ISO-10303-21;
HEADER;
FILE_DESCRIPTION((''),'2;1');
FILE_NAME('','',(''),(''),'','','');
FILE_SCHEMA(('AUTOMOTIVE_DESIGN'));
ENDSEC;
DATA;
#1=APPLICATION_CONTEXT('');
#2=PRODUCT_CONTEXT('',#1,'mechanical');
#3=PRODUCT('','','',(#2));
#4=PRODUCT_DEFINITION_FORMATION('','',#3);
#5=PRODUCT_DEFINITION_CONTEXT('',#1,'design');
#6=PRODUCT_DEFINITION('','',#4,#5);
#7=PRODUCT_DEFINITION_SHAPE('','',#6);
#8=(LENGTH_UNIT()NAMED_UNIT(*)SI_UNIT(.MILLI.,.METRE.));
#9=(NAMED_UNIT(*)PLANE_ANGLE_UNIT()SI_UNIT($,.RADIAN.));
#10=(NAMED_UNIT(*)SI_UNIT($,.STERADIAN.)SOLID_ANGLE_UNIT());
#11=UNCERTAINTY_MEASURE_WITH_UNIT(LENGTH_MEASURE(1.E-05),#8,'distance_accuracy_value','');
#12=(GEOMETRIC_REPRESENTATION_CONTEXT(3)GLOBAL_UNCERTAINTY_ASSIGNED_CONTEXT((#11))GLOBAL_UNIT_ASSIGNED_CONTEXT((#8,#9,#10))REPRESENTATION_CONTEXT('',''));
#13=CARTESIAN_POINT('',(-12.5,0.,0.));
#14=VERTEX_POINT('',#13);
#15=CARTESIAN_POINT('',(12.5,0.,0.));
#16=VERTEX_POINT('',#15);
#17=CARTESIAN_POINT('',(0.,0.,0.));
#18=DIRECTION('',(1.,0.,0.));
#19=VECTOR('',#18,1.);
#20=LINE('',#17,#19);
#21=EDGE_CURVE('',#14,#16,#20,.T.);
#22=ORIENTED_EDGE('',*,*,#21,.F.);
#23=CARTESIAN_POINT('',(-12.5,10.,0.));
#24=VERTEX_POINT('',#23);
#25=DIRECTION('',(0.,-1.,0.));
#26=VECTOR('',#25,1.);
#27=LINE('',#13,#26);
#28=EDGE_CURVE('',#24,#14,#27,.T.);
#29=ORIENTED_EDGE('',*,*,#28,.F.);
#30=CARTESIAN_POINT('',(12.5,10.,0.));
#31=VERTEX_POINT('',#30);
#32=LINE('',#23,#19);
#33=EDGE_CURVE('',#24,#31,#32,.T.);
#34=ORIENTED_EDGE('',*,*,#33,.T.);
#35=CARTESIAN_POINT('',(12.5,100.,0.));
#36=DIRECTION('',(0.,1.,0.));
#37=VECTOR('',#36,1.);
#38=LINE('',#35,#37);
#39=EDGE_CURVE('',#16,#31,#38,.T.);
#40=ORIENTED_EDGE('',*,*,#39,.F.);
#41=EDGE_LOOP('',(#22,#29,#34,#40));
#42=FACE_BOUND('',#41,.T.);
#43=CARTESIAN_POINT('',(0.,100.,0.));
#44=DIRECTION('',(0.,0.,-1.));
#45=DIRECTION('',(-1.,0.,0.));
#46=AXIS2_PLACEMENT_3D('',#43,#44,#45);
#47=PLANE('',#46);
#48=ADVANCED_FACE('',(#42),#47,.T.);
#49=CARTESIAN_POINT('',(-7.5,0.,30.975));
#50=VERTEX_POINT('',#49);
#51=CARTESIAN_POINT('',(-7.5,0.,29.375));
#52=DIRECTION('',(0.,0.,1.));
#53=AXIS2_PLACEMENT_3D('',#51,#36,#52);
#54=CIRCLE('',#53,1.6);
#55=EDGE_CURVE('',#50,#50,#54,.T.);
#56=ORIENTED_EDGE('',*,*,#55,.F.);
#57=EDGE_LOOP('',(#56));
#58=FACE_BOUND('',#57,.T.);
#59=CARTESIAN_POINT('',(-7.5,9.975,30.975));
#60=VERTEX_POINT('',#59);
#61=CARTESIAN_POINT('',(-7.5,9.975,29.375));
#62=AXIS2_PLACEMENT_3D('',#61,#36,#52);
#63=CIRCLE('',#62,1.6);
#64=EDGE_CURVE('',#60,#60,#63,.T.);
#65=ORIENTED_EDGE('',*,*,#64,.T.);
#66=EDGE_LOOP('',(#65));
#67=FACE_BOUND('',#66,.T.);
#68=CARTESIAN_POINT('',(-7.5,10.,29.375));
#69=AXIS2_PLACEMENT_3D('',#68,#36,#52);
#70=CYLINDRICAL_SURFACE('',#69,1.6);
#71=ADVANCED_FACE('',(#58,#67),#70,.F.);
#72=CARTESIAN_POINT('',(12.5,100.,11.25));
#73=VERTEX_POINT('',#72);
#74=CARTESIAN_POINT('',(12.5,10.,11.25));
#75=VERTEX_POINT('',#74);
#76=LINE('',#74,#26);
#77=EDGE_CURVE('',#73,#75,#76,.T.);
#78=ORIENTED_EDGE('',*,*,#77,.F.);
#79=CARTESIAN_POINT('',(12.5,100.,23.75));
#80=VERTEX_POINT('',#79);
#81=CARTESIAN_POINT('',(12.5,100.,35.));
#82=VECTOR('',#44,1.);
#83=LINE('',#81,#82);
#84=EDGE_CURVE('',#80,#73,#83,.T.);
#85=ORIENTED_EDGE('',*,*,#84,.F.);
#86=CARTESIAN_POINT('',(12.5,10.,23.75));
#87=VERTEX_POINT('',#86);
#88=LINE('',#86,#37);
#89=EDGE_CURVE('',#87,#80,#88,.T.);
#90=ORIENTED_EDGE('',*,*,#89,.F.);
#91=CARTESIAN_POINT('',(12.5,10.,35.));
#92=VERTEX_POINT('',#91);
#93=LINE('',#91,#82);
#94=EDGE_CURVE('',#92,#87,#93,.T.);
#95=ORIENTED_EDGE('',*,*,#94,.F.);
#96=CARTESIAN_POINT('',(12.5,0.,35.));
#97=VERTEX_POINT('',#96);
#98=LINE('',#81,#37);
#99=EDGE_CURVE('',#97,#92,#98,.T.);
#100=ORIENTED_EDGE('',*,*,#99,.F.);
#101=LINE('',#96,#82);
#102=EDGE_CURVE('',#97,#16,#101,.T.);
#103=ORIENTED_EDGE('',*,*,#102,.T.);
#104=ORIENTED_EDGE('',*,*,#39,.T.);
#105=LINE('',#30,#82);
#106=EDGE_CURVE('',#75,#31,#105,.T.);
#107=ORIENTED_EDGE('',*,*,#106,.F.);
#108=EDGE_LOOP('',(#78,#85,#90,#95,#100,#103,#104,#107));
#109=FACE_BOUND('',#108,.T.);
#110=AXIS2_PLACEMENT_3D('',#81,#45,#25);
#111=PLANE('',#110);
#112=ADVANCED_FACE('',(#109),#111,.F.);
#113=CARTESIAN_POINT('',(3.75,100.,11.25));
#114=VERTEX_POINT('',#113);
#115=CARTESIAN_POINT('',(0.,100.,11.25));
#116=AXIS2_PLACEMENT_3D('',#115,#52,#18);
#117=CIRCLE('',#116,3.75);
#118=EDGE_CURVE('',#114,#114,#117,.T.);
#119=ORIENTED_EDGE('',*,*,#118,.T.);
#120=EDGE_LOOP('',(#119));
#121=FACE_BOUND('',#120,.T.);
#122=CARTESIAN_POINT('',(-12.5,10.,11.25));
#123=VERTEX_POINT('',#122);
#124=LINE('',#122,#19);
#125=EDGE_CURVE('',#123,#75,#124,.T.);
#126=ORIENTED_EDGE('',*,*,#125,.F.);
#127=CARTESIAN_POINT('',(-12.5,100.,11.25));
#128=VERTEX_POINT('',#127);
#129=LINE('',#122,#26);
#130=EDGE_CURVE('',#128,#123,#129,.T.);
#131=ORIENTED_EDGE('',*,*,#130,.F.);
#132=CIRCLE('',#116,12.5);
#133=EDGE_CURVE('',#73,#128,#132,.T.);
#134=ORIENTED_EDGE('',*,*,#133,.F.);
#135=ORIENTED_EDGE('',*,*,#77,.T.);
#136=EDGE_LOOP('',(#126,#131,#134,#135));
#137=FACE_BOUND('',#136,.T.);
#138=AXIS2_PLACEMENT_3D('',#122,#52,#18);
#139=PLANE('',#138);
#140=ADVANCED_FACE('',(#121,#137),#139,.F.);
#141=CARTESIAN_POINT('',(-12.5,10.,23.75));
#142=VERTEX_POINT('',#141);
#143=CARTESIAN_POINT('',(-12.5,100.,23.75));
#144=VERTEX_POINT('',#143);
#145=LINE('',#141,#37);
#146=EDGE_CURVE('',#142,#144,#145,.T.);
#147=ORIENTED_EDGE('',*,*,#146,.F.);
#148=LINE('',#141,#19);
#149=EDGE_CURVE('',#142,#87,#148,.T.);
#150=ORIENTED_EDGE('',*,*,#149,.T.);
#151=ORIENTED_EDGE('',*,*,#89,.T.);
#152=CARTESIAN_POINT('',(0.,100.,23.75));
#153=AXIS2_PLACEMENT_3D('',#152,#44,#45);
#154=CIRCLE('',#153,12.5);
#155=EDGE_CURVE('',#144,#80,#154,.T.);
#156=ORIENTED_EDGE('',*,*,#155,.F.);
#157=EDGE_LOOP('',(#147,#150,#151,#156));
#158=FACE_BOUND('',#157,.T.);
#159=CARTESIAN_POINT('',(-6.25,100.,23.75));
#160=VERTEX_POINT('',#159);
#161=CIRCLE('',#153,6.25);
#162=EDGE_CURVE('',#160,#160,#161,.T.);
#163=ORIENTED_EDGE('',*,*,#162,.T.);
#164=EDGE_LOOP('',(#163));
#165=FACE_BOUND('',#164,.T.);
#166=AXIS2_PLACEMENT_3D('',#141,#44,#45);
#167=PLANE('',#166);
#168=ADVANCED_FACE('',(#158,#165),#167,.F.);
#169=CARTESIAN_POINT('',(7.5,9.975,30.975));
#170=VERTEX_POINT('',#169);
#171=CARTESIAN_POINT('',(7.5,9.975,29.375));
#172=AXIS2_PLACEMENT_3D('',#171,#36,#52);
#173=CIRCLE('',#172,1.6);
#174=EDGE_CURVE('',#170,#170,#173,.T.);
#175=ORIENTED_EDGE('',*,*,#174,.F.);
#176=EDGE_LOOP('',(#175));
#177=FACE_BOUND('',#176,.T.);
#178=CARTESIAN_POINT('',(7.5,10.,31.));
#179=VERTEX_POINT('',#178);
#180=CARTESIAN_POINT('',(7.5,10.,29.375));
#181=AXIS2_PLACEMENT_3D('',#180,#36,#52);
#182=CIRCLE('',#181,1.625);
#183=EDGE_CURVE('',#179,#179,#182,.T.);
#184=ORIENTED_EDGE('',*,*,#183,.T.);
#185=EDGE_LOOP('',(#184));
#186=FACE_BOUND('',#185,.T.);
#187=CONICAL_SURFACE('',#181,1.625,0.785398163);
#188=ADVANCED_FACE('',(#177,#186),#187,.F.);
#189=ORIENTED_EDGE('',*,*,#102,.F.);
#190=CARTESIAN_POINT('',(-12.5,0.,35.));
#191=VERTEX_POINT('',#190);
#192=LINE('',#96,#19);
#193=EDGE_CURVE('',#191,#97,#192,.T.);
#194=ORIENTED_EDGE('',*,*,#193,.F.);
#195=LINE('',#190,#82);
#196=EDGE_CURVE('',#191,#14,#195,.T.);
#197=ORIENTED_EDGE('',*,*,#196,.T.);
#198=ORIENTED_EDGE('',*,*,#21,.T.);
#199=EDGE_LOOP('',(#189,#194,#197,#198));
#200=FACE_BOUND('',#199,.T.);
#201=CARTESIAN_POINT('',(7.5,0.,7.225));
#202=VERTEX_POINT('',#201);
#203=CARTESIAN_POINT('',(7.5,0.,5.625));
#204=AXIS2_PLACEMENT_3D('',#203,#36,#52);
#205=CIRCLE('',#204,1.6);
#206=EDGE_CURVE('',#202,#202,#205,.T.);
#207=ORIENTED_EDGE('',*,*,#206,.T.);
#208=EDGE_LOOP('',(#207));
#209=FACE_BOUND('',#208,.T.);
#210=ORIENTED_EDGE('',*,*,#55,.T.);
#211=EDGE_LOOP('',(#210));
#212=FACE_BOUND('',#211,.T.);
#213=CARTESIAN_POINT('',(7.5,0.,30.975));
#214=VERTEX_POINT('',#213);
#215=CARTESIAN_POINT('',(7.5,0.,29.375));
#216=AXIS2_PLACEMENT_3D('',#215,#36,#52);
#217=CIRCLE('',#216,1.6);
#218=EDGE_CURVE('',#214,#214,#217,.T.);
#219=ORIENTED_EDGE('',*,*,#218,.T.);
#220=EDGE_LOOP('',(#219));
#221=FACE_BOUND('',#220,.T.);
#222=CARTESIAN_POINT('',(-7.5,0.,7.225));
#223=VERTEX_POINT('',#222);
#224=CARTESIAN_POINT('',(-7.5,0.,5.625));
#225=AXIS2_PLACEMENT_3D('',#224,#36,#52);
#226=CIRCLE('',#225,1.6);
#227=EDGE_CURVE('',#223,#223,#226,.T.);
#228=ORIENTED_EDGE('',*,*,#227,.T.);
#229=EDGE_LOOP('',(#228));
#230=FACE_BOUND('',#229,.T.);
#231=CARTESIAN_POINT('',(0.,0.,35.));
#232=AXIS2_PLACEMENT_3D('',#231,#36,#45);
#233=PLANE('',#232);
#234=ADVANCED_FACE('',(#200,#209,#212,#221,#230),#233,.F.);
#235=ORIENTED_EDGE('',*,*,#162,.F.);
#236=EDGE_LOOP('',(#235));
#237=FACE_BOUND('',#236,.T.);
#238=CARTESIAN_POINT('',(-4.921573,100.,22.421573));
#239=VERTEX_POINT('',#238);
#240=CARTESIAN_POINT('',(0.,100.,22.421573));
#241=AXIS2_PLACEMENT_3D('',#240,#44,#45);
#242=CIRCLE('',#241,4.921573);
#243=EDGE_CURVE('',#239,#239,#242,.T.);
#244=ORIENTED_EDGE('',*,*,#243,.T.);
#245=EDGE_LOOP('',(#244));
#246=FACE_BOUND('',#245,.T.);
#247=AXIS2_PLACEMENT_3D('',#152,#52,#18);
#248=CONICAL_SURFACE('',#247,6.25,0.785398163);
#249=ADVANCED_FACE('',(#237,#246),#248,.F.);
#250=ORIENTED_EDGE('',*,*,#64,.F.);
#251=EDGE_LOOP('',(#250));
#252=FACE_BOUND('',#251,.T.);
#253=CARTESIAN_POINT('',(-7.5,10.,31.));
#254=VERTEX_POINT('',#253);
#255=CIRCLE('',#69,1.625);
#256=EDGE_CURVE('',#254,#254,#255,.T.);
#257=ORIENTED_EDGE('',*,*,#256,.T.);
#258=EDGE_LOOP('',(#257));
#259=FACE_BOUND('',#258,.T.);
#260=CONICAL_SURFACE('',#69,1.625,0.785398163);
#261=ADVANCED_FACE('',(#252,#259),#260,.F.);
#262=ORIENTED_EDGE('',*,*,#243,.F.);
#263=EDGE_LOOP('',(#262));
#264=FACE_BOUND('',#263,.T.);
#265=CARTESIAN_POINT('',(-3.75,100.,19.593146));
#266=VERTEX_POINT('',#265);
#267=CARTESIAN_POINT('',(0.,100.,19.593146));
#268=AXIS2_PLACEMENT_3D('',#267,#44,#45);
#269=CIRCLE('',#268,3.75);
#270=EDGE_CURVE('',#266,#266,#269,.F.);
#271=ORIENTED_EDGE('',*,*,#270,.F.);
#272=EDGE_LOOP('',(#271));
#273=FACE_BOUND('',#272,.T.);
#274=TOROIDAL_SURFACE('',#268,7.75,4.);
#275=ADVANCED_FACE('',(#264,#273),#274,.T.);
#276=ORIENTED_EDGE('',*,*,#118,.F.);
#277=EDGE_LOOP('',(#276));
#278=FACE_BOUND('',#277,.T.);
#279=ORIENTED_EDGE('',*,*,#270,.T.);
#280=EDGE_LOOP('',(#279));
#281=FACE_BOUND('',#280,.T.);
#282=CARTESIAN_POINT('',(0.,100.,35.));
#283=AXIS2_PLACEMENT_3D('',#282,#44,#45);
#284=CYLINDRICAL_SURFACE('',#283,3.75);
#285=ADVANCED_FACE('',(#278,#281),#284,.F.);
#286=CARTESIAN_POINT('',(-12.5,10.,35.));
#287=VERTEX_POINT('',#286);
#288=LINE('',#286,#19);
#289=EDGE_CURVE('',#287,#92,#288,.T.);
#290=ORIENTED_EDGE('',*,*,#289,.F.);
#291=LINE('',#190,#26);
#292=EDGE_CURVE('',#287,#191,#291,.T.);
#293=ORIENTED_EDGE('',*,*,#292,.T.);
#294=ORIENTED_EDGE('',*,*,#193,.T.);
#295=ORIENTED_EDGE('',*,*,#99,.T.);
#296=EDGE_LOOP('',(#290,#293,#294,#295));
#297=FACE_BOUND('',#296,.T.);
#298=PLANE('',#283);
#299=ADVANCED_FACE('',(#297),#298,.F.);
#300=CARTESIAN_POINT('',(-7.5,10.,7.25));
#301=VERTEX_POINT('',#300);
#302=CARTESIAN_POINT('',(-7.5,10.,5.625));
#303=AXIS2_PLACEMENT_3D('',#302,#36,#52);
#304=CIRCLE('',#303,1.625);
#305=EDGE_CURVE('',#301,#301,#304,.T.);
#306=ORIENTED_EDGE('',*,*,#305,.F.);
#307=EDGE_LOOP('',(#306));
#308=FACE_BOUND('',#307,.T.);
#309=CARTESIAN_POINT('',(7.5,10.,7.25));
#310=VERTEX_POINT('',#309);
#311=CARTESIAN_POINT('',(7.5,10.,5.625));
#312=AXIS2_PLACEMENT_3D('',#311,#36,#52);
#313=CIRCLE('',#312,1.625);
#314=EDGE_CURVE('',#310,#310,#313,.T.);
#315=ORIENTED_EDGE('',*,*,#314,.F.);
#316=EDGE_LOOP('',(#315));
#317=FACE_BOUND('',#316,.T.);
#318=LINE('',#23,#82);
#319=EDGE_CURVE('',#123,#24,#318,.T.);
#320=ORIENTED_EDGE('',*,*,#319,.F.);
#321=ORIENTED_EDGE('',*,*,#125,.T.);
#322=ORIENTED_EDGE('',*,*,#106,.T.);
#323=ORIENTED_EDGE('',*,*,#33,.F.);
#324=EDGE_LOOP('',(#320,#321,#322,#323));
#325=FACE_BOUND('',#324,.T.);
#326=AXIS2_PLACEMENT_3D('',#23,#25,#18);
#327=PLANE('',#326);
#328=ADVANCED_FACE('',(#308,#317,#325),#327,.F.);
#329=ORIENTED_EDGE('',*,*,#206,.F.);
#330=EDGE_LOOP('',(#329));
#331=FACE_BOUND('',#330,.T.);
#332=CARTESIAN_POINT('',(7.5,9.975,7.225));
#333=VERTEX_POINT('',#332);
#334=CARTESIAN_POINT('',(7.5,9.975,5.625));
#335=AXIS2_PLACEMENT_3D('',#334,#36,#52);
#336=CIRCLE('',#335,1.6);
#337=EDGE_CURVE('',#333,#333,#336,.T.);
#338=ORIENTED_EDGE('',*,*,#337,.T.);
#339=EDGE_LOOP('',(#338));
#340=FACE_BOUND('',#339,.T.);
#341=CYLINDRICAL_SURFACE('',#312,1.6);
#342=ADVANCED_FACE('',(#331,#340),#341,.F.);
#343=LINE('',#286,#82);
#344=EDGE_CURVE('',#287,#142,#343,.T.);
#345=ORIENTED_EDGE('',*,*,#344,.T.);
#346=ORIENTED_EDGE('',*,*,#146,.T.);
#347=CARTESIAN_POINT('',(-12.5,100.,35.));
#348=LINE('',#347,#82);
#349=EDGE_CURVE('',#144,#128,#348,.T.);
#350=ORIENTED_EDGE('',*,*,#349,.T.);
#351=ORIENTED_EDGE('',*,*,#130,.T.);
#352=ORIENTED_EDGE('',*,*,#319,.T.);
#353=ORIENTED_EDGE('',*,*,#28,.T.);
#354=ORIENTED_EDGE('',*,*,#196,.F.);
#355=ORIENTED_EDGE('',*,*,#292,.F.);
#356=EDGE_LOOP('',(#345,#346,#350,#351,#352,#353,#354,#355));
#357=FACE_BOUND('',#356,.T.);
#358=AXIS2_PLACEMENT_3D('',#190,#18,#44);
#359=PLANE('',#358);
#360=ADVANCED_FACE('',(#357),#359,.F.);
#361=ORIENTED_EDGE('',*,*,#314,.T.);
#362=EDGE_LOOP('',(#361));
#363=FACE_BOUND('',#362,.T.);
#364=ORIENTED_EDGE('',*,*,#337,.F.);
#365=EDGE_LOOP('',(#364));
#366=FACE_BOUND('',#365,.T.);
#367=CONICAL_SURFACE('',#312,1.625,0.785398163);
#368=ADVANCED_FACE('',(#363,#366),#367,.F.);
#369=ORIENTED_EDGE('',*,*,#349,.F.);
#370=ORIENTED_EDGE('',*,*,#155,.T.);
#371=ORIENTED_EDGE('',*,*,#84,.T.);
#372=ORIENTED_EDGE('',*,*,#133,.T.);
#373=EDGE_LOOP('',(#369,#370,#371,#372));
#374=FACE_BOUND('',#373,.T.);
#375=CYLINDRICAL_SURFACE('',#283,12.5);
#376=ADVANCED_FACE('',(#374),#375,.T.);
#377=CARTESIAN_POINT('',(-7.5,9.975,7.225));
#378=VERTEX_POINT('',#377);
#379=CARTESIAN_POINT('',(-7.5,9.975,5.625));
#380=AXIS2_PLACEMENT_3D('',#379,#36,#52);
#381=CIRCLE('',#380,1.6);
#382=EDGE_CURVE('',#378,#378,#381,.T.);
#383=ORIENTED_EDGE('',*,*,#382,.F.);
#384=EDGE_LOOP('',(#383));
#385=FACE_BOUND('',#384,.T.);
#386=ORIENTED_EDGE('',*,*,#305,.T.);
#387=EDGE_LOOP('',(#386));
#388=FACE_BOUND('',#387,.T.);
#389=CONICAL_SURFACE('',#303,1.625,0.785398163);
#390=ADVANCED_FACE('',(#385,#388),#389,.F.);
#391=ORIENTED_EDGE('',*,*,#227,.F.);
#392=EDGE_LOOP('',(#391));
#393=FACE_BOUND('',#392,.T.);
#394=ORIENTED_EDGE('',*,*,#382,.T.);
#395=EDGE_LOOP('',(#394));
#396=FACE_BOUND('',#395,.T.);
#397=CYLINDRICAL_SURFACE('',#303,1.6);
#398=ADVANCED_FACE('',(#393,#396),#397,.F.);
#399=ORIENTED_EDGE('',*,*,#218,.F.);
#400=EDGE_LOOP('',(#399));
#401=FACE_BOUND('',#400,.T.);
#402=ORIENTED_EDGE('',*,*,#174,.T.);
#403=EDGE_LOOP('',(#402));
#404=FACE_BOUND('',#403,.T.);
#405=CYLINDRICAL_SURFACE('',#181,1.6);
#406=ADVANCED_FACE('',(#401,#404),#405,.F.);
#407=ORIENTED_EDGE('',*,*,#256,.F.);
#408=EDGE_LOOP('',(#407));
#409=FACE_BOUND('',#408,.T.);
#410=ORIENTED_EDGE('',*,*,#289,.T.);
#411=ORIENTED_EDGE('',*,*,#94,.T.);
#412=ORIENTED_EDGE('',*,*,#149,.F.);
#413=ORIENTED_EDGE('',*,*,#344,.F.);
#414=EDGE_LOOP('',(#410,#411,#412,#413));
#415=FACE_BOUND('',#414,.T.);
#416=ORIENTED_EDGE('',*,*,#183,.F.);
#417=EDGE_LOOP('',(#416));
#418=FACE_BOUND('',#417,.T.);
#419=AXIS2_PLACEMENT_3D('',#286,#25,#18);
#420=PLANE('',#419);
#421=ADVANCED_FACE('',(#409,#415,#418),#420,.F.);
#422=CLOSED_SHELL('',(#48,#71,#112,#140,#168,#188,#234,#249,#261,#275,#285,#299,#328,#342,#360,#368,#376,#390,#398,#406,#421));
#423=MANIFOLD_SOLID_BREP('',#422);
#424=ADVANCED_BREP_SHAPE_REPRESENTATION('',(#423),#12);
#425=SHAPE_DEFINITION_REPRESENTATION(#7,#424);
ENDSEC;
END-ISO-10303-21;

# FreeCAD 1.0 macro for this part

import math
import FreeCAD as App
import Part
import Sketcher


def edges_at(feature, points):
    """Names of the edges that pass closest to the given points."""
    edges = feature.Shape.Edges
    near = lambda p: min(range(len(edges)), key=lambda i: edges[i].distToShape(Part.Vertex(*p))[0])
    return sorted({f"Edge{near(p) + 1}" for p in points})


def add_polygon(sketch, points):
    """Adds a closed chain of lines whose ends are joined by coincident constraints."""
    first, n = sketch.GeometryCount, len(points)
    for a, b in zip(points, points[1:] + points[:1]):
        sketch.addGeometry(Part.LineSegment(App.Vector(*a, 0), App.Vector(*b, 0)), False)
    for i in range(n):
        sketch.addConstraint(Sketcher.Constraint("Coincident", first + i, 2, first + (i + 1) % n, 1))

doc = App.newDocument("Part")
params = doc.addObject("Spreadsheet::Sheet", "Params")
for row, (alias, value) in enumerate([
    ("sketch1_diameter", "7.5 mm"),
    ("sketch1_radius", "12.5 mm"),
    ("sketch1_height", "100 mm"),
    ("pad1_length", "35 mm"),
    ("sketch2_width", "102.5 mm"),
    ("sketch2_height", "11.25 mm"),
    ("sketch3_diameter", "3.2 mm"),
    ("hole_diameter", "3.2 mm"),
    ("hole_csink_diameter", "3.25 mm"),
    ("chamfer_size", "2.5 mm"),
    ("fillet_radius", "4 mm"),
], start=1):
    params.set(f"A{row}", alias)
    params.set(f"B{row}", "=" + value)
    params.setAlias(f"B{row}", alias)

body = doc.addObject("PartDesign::Body", "Body")

# Sketch on XY plane
sketch1 = body.newObject("Sketcher::SketchObject", "Sketch")
sketch1.AttachmentSupport = (doc.getObject("XY_Plane"), [""])
sketch1.MapMode = "FlatFace"
sketch1.addGeometry([
    Part.LineSegment(App.Vector(-12.5, 100, 0), App.Vector(-12.5, 0, 0)),  # 0
    Part.LineSegment(App.Vector(-12.5, 0, 0), App.Vector(12.5, 0, 0)),  # 1
    Part.LineSegment(App.Vector(12.5, 0, 0), App.Vector(12.5, 100, 0)),  # 2
    Part.ArcOfCircle(Part.Circle(App.Vector(0, 100, 0), App.Vector(0, 0, 1), 12.5), math.radians(0), math.radians(180)),  # 3
    Part.Circle(App.Vector(0, 100, 0), App.Vector(0, 0, 1), 3.8),  # 4
], False)
sketch1.addConstraint([
    Sketcher.Constraint("Coincident", 0, 2, 1, 1),
    Sketcher.Constraint("Coincident", 1, 2, 2, 1),
    Sketcher.Constraint("Tangent", 2, 2, 3, 1),
    Sketcher.Constraint("Tangent", 3, 2, 0, 1),
    Sketcher.Constraint("Vertical", 0),
    Sketcher.Constraint("Horizontal", 1),
    Sketcher.Constraint("Vertical", 2),
    Sketcher.Constraint("Coincident", 4, 3, 3, 3),
    Sketcher.Constraint("Symmetric", 0, 2, 1, 2, -1, 1),
    Sketcher.Constraint("Diameter", 4, 7.5),
    Sketcher.Constraint("Radius", 3, 12.5),
    Sketcher.Constraint("DistanceY", 0, 2, 0, 1, 100.0),
])
sketch1.setExpression("Constraints[9]", "Params.sketch1_diameter")
sketch1.setExpression("Constraints[10]", "Params.sketch1_radius")
sketch1.setExpression("Constraints[11]", "Params.sketch1_height")
pad1 = body.newObject("PartDesign::Pad", "Pad")
pad1.Profile = sketch1
pad1.setExpression("Length", "Params.pad1_length")

# Sketch on YZ plane
sketch2 = body.newObject("Sketcher::SketchObject", "Sketch001")
sketch2.AttachmentSupport = (doc.getObject("YZ_Plane"), [""])
sketch2.MapMode = "FlatFace"
sketch2.AttachmentOffset = App.Placement(App.Vector(0, 0, 12.5), App.Rotation())
add_polygon(sketch2, [(112, 35), (10, 35), (10, 24), (112, 24)])  # lines 0-3
add_polygon(sketch2, [(112, 11), (10, 11), (10, 0), (112, 0)])  # lines 4-7
sketch2.addConstraint([
    Sketcher.Constraint("Horizontal", 0),
    Sketcher.Constraint("Vertical", 1),
    Sketcher.Constraint("Horizontal", 2),
    Sketcher.Constraint("Vertical", 3),
    Sketcher.Constraint("Horizontal", 4),
    Sketcher.Constraint("Vertical", 5),
    Sketcher.Constraint("Horizontal", 6),
    Sketcher.Constraint("Vertical", 7),
    Sketcher.Constraint("PointOnObject", 5, 2, -1),
    Sketcher.Constraint("Vertical", 1, 2, 4, 2),
    Sketcher.Constraint("Vertical", 3, 2, 6, 2),
    Sketcher.Constraint("Equal", 3, 5),
    Sketcher.Constraint("DistanceX", 0, 2, 0, 1, 102.5),
    Sketcher.Constraint("DistanceX", -1, 1, 0, 2, 10.0),
    Sketcher.Constraint("DistanceY", -1, 1, 0, 2, 35.0),
    Sketcher.Constraint("DistanceY", 1, 2, 1, 1, 11.25),
])
sketch2.setExpression("Constraints[20]", "Params.sketch2_width")
sketch2.setExpression("Constraints[23]", "Params.sketch2_height")
pocket1 = body.newObject("PartDesign::Pocket", "Pocket")
pocket1.Profile = sketch2
pocket1.Type = "ThroughAll"

# Sketch on XZ plane
sketch3 = body.newObject("Sketcher::SketchObject", "Sketch002")
sketch3.AttachmentSupport = (doc.getObject("XZ_Plane"), [""])
sketch3.MapMode = "FlatFace"
sketch3.AttachmentOffset = App.Placement(App.Vector(0, 0, -10), App.Rotation())
sketch3.addGeometry([
    Part.Circle(App.Vector(-7.5, 5.6, 0), App.Vector(0, 0, 1), 1.6),
    Part.Circle(App.Vector(7.5, 5.6, 0), App.Vector(0, 0, 1), 1.6),
    Part.Circle(App.Vector(7.5, 29.4, 0), App.Vector(0, 0, 1), 1.6),
    Part.Circle(App.Vector(-7.5, 29.4, 0), App.Vector(0, 0, 1), 1.6),
], False)
sketch3.addConstraint([
    Sketcher.Constraint("Equal", 0, 1),
    Sketcher.Constraint("Equal", 1, 2),
    Sketcher.Constraint("Equal", 2, 3),
    Sketcher.Constraint("Symmetric", 0, 3, 1, 3, -2),
    Sketcher.Constraint("Symmetric", 2, 3, 3, 3, -2),
    Sketcher.Constraint("Vertical", 1, 3, 2, 3),
    Sketcher.Constraint("Diameter", 0, 3.2),
    Sketcher.Constraint("DistanceX", 0, 3, 1, 3, 15.0),
    Sketcher.Constraint("DistanceY", 1, 3, 2, 3, 23.75),
    Sketcher.Constraint("DistanceY", -1, 1, 0, 3, 5.625),
])
sketch3.setExpression("Constraints[6]", "Params.sketch3_diameter")
doc.recompute()
hole = body.newObject("PartDesign::Hole", "Hole")
hole.Profile = sketch3
hole.ThreadType = "None"
hole.setExpression("Diameter", "Params.hole_diameter")
hole.DepthType = "ThroughAll"
hole.HoleCutType = "Countersink"
hole.setExpression("HoleCutDiameter", "Params.hole_csink_diameter")
hole.HoleCutCountersinkAngle = 90
hole.Reversed = True
doc.recompute()

chamfer = body.newObject("PartDesign::Chamfer", "Chamfer")
chamfer.Base = (hole, edges_at(hole, [(-3.75, 100, 23.75)]))
chamfer.setExpression("Size", "Params.chamfer_size")
doc.recompute()

fillet = body.newObject("PartDesign::Fillet", "Fillet")
fillet.Base = (chamfer, edges_at(chamfer, [(-3.75, 100, 21.25)]))
fillet.setExpression("Radius", "Params.fillet_radius")

doc.recompute()
